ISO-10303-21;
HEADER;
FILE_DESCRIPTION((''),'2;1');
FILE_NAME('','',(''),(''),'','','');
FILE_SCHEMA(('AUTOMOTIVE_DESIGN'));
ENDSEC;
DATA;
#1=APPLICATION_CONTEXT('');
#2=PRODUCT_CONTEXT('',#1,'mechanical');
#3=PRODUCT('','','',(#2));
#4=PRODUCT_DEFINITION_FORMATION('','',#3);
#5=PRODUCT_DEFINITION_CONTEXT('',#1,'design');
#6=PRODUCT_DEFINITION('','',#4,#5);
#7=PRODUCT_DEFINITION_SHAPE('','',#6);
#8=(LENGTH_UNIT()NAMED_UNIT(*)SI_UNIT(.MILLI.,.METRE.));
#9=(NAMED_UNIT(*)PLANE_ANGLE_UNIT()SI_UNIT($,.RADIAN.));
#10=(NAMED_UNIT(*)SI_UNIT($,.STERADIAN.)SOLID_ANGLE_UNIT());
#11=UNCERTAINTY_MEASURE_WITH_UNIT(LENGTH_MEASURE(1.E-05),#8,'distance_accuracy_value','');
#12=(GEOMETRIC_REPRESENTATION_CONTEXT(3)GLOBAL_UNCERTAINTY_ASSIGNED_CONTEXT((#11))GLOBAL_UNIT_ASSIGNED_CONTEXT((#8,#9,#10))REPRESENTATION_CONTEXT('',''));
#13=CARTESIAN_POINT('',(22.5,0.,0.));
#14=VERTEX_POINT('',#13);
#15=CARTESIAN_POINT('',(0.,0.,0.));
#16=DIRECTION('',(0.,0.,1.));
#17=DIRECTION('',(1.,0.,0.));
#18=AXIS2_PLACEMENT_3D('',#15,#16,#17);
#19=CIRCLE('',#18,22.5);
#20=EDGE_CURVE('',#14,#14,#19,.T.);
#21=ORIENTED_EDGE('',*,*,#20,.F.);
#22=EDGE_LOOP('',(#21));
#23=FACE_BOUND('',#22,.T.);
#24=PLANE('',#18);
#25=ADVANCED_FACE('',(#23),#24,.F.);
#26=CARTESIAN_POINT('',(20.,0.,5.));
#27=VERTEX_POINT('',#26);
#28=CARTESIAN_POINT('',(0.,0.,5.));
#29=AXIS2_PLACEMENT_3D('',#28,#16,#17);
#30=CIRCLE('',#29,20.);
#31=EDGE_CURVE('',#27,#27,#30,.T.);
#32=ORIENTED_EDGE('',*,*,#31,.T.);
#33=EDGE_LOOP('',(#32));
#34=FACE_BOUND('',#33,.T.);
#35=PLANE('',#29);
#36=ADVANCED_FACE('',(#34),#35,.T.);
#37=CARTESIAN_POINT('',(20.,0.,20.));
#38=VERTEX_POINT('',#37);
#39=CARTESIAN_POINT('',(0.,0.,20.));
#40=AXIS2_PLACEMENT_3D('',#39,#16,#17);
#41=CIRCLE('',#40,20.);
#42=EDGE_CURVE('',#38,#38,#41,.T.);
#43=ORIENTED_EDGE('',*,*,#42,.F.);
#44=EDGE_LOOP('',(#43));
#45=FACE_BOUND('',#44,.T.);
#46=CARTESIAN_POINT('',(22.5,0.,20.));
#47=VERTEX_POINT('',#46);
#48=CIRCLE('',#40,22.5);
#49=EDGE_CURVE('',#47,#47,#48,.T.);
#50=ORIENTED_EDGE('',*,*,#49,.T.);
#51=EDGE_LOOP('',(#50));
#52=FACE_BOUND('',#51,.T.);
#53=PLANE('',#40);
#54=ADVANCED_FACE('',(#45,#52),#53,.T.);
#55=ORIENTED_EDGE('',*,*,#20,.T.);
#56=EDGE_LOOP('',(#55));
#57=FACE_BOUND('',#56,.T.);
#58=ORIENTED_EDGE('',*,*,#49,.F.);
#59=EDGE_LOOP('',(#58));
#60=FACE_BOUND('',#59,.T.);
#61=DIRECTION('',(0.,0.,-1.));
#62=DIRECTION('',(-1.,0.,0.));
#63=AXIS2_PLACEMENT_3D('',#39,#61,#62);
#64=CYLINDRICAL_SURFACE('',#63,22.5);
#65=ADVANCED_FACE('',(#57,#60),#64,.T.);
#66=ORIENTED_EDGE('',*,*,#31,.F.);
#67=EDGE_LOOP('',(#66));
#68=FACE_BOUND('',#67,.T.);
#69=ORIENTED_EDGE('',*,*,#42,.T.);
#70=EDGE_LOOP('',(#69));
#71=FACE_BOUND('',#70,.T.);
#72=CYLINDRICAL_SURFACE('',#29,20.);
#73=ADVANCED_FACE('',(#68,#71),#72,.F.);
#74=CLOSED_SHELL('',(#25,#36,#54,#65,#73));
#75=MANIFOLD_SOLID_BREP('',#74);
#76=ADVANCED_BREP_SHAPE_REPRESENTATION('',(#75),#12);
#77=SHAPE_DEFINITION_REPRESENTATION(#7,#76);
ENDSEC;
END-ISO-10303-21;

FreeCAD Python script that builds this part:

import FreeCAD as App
import Part
import Sketcher
Q = App.Units.Quantity

doc = App.newDocument("Part")
body = doc.addObject("PartDesign::Body", "Body")

sketch1 = doc.addObject("Sketcher::SketchObject", "Sketch")
body.addObject(sketch1)
sketch1.AttachmentSupport = (doc.XY_Plane, [""])
sketch1.MapMode = "FlatFace"
sketch1.addGeometry(Part.Circle(App.Vector(0, 0, 0), App.Vector(0, 0, 1), 22.5), False)
sketch1.addConstraint([
    Sketcher.Constraint("Coincident", 0, 3, -1, 1),
    Sketcher.Constraint("Diameter", 0, Q("45 mm")),
])
pad1 = doc.addObject("PartDesign::Pad", "Pad")
body.addObject(pad1)
pad1.Profile = sketch1
pad1.Length = 20

sketch2 = doc.addObject("Sketcher::SketchObject", "Sketch001")
body.addObject(sketch2)
sketch2.AttachmentSupport = (doc.XY_Plane, [""])
sketch2.MapMode = "FlatFace"
sketch2.AttachmentOffset = App.Placement(App.Vector(0, 0, 20), App.Rotation())
sketch2.addGeometry(Part.Circle(App.Vector(0, 0, 0), App.Vector(0, 0, 1), 20), False)
sketch2.addConstraint([
    Sketcher.Constraint("Coincident", 0, 3, -1, 1),
    Sketcher.Constraint("Diameter", 0, Q("40 mm")),
])
pocket1 = doc.addObject("PartDesign::Pocket", "Pocket")
body.addObject(pocket1)
pocket1.Profile = sketch2
pocket1.Length = 15

doc.recompute()
